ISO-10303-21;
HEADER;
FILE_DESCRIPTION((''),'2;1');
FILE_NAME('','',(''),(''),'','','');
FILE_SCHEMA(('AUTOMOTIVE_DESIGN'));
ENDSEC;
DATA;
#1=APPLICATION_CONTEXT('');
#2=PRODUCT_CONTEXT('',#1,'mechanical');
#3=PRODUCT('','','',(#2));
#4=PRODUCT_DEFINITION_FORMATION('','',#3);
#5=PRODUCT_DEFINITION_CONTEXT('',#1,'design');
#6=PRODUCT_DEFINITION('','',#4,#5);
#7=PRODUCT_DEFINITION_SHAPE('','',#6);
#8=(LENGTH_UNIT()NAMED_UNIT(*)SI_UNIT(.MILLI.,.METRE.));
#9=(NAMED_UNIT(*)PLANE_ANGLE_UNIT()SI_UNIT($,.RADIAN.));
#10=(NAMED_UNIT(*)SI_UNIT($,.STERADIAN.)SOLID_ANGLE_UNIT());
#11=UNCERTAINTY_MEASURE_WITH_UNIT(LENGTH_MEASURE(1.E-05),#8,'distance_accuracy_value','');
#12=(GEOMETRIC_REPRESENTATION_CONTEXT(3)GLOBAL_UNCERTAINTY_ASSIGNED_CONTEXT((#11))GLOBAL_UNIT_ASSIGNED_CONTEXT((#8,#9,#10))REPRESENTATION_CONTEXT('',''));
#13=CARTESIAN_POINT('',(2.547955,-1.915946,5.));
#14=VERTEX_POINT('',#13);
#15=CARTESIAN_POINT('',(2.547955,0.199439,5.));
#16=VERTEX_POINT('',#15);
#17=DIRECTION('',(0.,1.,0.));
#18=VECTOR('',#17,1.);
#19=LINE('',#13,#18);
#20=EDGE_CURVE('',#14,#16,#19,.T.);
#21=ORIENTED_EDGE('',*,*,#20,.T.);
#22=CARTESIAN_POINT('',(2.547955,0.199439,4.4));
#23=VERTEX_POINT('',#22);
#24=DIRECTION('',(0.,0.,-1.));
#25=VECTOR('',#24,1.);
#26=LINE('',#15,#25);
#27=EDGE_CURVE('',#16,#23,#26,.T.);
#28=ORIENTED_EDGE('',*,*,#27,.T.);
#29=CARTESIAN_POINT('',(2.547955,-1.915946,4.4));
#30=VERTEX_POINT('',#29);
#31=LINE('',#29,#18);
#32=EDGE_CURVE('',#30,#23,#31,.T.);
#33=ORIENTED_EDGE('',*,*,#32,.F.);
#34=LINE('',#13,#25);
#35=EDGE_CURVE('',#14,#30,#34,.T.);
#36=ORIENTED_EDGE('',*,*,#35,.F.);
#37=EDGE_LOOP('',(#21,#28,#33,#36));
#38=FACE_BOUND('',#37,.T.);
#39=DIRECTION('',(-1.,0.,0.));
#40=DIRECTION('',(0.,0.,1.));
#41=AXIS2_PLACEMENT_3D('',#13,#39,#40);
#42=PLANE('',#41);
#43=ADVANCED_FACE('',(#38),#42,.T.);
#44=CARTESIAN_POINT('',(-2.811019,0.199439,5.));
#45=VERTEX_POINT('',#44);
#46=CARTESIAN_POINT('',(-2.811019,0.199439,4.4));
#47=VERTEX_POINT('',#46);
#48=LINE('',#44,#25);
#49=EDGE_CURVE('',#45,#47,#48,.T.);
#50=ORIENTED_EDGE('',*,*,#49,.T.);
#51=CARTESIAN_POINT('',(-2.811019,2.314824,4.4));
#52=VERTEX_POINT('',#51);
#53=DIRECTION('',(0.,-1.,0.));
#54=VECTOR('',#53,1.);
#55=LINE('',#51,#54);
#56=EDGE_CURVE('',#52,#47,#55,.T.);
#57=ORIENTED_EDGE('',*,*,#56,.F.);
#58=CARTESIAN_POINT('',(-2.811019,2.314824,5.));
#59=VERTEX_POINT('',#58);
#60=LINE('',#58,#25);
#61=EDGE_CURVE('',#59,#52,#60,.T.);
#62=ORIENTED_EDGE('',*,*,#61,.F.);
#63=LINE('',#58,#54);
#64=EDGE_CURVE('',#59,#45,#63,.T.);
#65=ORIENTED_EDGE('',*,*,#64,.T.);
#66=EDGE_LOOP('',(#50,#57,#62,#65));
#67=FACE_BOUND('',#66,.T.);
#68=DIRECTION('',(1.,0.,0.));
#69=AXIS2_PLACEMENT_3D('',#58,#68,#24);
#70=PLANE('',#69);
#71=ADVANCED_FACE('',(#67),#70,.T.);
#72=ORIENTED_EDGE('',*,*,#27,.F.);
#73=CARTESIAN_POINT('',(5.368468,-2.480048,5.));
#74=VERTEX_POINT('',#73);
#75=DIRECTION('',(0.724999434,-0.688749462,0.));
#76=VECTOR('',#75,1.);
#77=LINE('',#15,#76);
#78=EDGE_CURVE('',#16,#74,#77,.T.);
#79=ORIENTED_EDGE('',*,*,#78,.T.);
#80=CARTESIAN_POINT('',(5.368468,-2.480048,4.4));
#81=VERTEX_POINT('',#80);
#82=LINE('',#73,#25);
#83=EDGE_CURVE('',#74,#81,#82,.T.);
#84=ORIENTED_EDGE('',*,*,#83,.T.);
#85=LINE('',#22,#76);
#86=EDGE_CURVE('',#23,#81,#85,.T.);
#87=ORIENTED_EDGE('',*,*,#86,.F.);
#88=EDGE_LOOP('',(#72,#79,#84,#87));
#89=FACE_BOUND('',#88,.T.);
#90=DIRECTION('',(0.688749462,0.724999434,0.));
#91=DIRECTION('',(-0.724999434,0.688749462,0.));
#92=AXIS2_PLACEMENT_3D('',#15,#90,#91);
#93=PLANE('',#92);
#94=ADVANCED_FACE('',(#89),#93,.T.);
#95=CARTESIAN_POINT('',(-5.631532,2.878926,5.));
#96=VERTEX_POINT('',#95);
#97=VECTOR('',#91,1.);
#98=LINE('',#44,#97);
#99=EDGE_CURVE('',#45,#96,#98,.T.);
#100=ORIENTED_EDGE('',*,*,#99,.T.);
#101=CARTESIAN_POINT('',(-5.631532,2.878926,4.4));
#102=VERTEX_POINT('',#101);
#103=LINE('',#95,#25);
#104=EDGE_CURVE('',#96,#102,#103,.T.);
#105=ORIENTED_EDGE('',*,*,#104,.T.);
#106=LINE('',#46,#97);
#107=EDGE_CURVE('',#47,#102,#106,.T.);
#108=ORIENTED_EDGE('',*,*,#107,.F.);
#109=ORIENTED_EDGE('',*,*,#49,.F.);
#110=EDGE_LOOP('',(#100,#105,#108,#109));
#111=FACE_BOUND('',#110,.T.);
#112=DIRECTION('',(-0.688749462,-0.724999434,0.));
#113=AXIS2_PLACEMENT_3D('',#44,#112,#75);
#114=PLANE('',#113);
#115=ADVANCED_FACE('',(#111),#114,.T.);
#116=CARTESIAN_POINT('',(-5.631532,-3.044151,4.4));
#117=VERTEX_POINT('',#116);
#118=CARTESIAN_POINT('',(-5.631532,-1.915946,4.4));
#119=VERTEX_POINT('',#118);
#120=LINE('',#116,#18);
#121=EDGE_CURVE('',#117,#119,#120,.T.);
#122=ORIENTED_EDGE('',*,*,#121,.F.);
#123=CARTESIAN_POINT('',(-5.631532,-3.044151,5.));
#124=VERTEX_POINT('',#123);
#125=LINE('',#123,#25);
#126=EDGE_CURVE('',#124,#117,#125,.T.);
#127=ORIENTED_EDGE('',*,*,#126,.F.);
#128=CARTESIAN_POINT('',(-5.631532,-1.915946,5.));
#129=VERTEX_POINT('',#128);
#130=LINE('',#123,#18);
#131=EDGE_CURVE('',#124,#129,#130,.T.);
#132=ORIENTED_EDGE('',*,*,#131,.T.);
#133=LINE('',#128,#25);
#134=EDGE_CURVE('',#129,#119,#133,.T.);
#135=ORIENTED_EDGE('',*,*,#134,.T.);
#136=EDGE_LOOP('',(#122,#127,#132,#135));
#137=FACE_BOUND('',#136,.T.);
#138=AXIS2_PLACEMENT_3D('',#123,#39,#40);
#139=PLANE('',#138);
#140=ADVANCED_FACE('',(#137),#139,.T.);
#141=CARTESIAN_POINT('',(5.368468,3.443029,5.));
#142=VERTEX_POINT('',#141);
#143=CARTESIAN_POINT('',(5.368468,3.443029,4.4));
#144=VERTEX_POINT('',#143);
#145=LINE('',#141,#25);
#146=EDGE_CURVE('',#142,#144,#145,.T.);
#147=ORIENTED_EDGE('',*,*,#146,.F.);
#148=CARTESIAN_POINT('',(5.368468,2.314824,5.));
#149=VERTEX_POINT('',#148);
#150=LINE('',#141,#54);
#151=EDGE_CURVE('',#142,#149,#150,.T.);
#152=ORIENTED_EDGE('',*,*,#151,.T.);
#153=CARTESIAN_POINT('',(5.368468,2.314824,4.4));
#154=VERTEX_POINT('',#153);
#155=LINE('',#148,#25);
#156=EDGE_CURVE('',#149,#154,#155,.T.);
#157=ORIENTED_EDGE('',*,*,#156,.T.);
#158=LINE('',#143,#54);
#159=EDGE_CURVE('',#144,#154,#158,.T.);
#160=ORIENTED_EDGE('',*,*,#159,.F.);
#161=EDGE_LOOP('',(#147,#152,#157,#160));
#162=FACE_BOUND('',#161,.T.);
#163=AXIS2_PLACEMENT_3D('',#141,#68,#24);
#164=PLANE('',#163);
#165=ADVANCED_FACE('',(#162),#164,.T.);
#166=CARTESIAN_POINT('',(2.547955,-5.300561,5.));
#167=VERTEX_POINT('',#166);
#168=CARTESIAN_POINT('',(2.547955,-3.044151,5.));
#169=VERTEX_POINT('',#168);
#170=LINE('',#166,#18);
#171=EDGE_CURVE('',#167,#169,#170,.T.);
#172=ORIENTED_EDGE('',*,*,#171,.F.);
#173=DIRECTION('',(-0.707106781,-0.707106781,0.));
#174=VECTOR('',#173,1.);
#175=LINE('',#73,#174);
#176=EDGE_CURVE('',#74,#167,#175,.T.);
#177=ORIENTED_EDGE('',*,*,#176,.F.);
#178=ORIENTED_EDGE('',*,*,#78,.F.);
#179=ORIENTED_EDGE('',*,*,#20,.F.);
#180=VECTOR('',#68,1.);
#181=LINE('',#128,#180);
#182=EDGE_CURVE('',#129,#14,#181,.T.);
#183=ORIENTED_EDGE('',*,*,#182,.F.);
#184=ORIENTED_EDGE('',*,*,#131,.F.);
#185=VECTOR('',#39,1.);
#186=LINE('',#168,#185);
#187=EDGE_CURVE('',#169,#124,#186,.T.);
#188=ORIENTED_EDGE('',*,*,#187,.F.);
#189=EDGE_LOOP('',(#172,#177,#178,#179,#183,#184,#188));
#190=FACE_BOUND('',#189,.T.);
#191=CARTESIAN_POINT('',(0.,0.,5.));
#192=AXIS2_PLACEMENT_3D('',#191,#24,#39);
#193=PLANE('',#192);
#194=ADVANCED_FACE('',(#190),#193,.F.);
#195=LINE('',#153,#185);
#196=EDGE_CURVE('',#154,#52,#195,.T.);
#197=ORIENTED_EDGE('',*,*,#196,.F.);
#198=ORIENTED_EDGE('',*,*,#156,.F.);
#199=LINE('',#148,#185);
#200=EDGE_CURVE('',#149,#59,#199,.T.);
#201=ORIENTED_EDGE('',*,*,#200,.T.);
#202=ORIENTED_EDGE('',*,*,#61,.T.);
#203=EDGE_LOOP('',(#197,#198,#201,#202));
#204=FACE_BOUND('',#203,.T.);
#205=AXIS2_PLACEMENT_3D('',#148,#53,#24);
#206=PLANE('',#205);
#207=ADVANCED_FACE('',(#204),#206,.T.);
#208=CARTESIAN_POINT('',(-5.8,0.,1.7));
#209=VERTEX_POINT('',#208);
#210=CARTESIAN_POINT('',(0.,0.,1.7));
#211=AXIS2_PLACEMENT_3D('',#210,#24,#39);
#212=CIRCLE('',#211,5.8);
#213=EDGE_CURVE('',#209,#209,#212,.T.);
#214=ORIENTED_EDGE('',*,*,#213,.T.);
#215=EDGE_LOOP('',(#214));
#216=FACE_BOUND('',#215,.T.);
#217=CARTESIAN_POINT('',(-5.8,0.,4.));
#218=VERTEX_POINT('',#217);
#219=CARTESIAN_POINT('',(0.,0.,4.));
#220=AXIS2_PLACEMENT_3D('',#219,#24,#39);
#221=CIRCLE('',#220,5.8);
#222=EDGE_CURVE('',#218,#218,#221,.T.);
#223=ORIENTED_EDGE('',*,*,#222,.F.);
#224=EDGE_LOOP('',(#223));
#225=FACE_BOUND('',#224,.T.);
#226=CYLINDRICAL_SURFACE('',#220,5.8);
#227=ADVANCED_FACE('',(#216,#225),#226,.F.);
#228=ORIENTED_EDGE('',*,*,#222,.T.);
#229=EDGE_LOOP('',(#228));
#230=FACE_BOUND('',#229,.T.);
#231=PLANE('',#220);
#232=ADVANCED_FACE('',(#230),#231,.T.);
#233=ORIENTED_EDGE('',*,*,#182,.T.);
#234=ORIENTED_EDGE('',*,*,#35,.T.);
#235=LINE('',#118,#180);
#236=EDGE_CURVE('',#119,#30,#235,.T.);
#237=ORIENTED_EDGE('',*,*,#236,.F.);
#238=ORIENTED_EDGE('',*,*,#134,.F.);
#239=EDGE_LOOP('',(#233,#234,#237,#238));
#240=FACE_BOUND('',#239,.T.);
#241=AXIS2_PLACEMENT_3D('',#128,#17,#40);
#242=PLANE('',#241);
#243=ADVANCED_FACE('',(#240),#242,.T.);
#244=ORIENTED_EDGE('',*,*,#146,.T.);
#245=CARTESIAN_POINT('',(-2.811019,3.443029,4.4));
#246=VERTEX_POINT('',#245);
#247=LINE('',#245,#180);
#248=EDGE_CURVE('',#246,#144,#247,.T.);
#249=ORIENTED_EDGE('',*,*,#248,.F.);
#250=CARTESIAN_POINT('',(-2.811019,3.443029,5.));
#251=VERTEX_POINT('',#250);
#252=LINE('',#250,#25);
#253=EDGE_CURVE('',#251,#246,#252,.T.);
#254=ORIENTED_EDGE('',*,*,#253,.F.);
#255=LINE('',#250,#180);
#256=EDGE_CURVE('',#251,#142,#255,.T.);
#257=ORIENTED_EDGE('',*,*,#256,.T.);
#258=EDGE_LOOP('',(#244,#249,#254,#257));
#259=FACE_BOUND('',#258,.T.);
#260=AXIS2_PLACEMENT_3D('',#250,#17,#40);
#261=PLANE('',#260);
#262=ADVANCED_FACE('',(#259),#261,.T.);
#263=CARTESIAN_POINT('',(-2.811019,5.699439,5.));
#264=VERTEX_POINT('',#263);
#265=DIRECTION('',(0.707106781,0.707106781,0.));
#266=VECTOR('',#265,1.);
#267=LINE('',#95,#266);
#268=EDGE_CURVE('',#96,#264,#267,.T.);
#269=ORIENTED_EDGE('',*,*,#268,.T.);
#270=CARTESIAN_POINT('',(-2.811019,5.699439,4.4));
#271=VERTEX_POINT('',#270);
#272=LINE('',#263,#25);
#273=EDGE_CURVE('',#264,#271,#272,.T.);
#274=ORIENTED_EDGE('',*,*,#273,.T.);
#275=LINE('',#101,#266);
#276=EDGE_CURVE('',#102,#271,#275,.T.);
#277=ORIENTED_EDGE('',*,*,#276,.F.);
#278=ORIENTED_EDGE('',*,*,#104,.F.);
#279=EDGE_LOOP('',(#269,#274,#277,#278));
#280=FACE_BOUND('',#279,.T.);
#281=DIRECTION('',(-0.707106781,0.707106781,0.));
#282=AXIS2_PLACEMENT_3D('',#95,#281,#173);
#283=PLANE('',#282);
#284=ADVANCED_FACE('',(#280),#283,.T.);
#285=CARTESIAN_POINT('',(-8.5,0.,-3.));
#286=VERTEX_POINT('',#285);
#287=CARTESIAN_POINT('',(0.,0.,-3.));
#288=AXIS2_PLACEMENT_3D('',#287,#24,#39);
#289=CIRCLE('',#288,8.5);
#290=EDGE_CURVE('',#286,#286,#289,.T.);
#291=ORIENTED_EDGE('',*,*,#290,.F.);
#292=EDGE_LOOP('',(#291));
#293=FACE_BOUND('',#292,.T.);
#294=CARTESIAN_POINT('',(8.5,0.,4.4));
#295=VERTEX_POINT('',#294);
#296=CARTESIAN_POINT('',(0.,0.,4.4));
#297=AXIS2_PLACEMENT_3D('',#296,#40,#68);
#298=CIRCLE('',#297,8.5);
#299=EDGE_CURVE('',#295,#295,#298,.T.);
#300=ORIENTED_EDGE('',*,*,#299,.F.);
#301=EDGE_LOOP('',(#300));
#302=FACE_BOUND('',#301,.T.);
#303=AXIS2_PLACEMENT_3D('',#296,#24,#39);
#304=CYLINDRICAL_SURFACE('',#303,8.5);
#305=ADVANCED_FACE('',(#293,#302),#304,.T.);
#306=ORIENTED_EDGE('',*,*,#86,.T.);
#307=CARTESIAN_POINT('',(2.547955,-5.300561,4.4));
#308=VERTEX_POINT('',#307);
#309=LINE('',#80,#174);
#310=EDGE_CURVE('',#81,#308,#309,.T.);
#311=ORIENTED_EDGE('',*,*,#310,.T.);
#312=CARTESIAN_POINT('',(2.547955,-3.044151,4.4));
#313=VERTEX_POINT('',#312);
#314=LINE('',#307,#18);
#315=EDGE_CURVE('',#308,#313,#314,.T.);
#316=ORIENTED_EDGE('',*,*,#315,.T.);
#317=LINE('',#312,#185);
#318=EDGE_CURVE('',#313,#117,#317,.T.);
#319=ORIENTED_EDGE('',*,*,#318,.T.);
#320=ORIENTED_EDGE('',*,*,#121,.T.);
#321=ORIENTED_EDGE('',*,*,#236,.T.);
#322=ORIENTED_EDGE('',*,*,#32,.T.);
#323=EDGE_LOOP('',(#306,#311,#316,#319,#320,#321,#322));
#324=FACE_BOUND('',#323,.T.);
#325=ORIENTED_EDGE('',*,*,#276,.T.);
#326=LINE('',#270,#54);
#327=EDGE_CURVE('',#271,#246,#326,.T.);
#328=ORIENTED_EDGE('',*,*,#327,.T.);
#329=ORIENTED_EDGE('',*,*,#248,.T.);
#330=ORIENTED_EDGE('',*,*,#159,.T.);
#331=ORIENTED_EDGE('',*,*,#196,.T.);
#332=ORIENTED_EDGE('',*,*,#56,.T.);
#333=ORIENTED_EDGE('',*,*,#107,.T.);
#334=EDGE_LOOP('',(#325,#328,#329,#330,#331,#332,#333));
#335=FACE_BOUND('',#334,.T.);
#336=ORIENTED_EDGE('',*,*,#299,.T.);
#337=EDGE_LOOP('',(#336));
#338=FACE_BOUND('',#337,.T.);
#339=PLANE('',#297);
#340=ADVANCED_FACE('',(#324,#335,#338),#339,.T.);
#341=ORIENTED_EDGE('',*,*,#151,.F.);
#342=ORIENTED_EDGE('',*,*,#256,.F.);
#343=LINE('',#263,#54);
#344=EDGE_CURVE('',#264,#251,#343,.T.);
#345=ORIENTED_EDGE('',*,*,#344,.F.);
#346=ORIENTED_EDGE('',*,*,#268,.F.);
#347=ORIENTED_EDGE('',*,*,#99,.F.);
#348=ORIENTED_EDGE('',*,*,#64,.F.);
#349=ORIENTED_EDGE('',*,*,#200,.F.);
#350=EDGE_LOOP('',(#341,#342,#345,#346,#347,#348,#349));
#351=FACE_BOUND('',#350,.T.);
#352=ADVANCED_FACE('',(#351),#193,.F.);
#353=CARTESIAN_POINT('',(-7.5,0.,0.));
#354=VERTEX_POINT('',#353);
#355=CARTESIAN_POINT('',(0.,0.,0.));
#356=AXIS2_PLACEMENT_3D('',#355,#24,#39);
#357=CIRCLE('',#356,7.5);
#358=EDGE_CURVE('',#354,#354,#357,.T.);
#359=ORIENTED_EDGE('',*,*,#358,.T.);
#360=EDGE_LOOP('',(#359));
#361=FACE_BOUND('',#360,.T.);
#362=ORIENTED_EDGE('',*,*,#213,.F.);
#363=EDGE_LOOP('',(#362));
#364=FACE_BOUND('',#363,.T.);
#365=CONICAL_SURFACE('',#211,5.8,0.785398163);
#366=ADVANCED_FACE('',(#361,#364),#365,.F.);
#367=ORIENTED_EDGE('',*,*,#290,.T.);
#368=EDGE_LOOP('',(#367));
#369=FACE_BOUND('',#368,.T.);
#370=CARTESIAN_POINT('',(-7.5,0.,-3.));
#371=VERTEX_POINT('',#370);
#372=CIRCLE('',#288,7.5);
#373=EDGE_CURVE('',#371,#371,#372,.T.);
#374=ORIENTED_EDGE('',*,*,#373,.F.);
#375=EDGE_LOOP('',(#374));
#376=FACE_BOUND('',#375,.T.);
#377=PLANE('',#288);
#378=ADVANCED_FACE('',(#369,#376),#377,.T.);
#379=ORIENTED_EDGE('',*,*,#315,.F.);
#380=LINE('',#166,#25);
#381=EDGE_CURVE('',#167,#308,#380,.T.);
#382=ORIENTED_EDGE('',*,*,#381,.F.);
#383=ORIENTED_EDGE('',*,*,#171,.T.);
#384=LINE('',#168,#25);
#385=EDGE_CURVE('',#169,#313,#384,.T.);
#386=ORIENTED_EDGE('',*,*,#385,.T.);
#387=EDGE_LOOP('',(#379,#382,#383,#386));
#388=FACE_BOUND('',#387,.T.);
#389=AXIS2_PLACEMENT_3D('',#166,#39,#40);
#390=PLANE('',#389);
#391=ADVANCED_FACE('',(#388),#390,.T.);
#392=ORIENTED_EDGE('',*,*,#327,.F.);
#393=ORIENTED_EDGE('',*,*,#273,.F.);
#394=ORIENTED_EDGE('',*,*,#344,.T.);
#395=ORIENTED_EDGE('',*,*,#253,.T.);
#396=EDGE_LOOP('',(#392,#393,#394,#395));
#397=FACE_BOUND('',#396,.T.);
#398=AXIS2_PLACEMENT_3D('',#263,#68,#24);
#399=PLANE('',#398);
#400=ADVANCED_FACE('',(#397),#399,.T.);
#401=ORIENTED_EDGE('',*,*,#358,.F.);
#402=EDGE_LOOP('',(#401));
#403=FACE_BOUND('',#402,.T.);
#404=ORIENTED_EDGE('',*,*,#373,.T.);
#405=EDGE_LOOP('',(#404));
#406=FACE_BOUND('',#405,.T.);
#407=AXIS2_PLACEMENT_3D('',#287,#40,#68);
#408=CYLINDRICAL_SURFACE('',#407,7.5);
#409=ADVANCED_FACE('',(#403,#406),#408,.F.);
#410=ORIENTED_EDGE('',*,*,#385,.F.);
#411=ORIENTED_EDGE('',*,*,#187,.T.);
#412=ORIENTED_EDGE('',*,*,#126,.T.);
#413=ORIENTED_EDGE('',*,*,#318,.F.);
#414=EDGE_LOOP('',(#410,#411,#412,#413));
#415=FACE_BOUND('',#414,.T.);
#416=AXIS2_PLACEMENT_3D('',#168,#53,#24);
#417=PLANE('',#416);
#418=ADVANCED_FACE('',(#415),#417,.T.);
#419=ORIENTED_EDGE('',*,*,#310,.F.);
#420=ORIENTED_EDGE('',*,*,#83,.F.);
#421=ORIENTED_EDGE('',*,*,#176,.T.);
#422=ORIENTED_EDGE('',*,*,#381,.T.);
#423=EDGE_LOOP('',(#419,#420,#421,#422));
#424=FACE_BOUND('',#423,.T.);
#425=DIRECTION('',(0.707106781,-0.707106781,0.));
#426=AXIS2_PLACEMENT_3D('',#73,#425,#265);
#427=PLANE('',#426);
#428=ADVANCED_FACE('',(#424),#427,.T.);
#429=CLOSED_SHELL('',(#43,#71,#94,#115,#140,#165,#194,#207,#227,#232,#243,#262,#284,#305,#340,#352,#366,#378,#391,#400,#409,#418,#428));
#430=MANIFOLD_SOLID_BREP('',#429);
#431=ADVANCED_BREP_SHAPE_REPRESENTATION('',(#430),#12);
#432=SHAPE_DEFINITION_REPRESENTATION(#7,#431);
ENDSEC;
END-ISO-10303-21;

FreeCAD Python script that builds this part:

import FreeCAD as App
import Part
import Sketcher

V = App.Vector
Q = App.Units.Quantity


def add_polygon(sketch, points):
    """Adds a closed chain of lines whose ends are joined by coincident constraints."""
    first, n = sketch.GeometryCount, len(points)
    for a, b in zip(points, points[1:] + points[:1]):
        sketch.addGeometry(Part.LineSegment(App.Vector(*a, 0), App.Vector(*b, 0)), False)
    for i in range(n):
        sketch.addConstraint(Sketcher.Constraint("Coincident", first + i, 2, first + (i + 1) % n, 1))

doc = App.newDocument("Part")
params = doc.addObject("Spreadsheet::Sheet", "Params")
for row, (alias, value) in enumerate([
    ("sketch1_diameter", "17 mm"),
    ("pad1_length", "4.4 mm"),
    ("sketch2_diameter", "11.6 mm"),
    ("pocket1_length", "4 mm"),
    ("sketch3_diameter", "17 mm"),
    ("sketch3_diameter2", "15 mm"),
    ("pad2_length", "3 mm"),
    ("sketch4_width", "1.7 mm"),
    ("groove_angle", "360 deg"),
    ("pad3_length", "0.6 mm"),
], start=1):
    params.set(f"A{row}", alias)
    params.set(f"B{row}", "=" + value)
    params.setAlias(f"B{row}", alias)

body = doc.addObject("PartDesign::Body", "Body")

# Sketch on XY plane
sketch1 = doc.addObject("Sketcher::SketchObject", "Sketch")
body.addObject(sketch1)
sketch1.AttachmentSupport = (doc.XY_Plane, [""])
sketch1.MapMode = "FlatFace"
sketch1.addGeometry(Part.Circle(V(0, 0, 0), V(0, 0, 1), 8), False)
sketch1.addConstraint([
    Sketcher.Constraint("Coincident", 0, 3, -1, 1),
    Sketcher.Constraint("Diameter", 0, Q("17 mm")),
])
sketch1.setExpression("Constraints[1]", "Params.sketch1_diameter")
pad1 = doc.addObject("PartDesign::Pad", "Pad")
body.addObject(pad1)
pad1.Profile = sketch1
pad1.setExpression("Length", "Params.pad1_length")

# Sketch on XY plane
sketch2 = doc.addObject("Sketcher::SketchObject", "Sketch001")
body.addObject(sketch2)
sketch2.AttachmentSupport = (doc.XY_Plane, [""])
sketch2.MapMode = "FlatFace"
sketch2.addGeometry(Part.Circle(V(0, 0, 0), V(0, 0, 1), 6), False)
sketch2.addConstraint([
    Sketcher.Constraint("Coincident", 0, 3, -1, 1),
    Sketcher.Constraint("Diameter", 0, Q("11.6 mm")),
])
sketch2.setExpression("Constraints[1]", "Params.sketch2_diameter")
pocket1 = doc.addObject("PartDesign::Pocket", "Pocket")
body.addObject(pocket1)
pocket1.Profile = sketch2
pocket1.setExpression("Length", "Params.pocket1_length")
pocket1.Reversed = True

# Sketch on XY plane
sketch3 = doc.addObject("Sketcher::SketchObject", "Sketch002")
body.addObject(sketch3)
sketch3.AttachmentSupport = (doc.XY_Plane, [""])
sketch3.MapMode = "FlatFace"
sketch3.AttachmentOffset = App.Placement(V(0, 0, -3), App.Rotation())
sketch3.addGeometry([
    Part.Circle(V(0, 0, 0), V(0, 0, 1), 8),
    Part.Circle(V(0, 0, 0), V(0, 0, 1), 8),
], False)
sketch3.addConstraint([
    Sketcher.Constraint("Coincident", 0, 3, -1, 1),
    Sketcher.Constraint("Coincident", 1, 3, -1, 1),
    Sketcher.Constraint("Diameter", 0, Q("17 mm")),
    Sketcher.Constraint("Diameter", 1, Q("15 mm")),
])
sketch3.setExpression("Constraints[2]", "Params.sketch3_diameter")
sketch3.setExpression("Constraints[3]", "Params.sketch3_diameter2")
pad2 = doc.addObject("PartDesign::Pad", "Pad001")
body.addObject(pad2)
pad2.Profile = sketch3
pad2.setExpression("Length", "Params.pad2_length")

# Sketch on XZ plane
sketch4 = doc.addObject("Sketcher::SketchObject", "Sketch003")
body.addObject(sketch4)
sketch4.AttachmentSupport = (doc.XZ_Plane, [""])
sketch4.MapMode = "FlatFace"
add_polygon(sketch4, [(5.8, 1.7), (7.5, 0), (5.8, 0)])  # lines 0-2
sketch4.addConstraint([
    Sketcher.Constraint("Horizontal", 1),
    Sketcher.Constraint("Vertical", 2),
    Sketcher.Constraint("PointOnObject", 0, 2, -1),
    Sketcher.Constraint("Equal", 1, 2),
    Sketcher.Constraint("DistanceX", 1, 2, 1, 1, Q("1.7 mm")),
    Sketcher.Constraint("DistanceX", -1, 1, 0, 2, Q("7.5 mm")),
])
sketch4.setExpression("Constraints[7]", "Params.sketch4_width")
groove = doc.addObject("PartDesign::Groove", "Groove")
body.addObject(groove)
groove.Profile = sketch4
groove.ReferenceAxis = (sketch4, ["V_Axis"])
groove.setExpression("Angle", "Params.groove_angle")

# Sketch on XY plane
sketch5 = doc.addObject("Sketcher::SketchObject", "Sketch004")
body.addObject(sketch5)
sketch5.AttachmentSupport = (doc.XY_Plane, [""])
sketch5.MapMode = "FlatFace"
sketch5.AttachmentOffset = App.Placement(V(0, 0, 4.4), App.Rotation())
add_polygon(sketch5, [(-2.8, 5.7), (-5.6, 2.9), (-2.8, 0.2), (-2.8, 2.3), (5.4, 2.3), (5.4, 3.4), (-2.8, 3.4)])  # lines 0-6
add_polygon(sketch5, [(2.5, -5.3), (5.4, -2.5), (2.5, 0.2), (2.5, -1.9), (-5.6, -1.9), (-5.6, -3), (2.5, -3)])  # lines 7-13
sketch5.addConstraint([
    Sketcher.Constraint("Vertical", 2),
    Sketcher.Constraint("Horizontal", 3),
    Sketcher.Constraint("Vertical", 4),
    Sketcher.Constraint("Horizontal", 5),
    Sketcher.Constraint("Vertical", 6),
    Sketcher.Constraint("Vertical", 9),
    Sketcher.Constraint("Horizontal", 10),
    Sketcher.Constraint("Vertical", 11),
    Sketcher.Constraint("Horizontal", 12),
    Sketcher.Constraint("Vertical", 13),
    Sketcher.Constraint("Parallel", 0, 7),
    Sketcher.Constraint("Parallel", 1, 8),
    Sketcher.Constraint("Horizontal", 1, 2, 8, 2),
    Sketcher.Constraint("Vertical", 2, 2, 5, 2),
    Sketcher.Constraint("Vertical", 4, 2, 7, 2),
    Sketcher.Constraint("Vertical", 0, 2, 10, 2),
    Sketcher.Constraint("Vertical", 9, 2, 12, 2),
    Sketcher.Constraint("Equal", 5, 10),
    Sketcher.Constraint("Equal", 2, 9),
    Sketcher.Constraint("Equal", 4, 11),
    Sketcher.Constraint("Angle", 0, Q("-135 deg")),
    Sketcher.Constraint("DistanceX", 0, 2, 3, 2, Q("11 mm")),
    Sketcher.Constraint("DistanceY", 1, 2, 6, 2, Q("5.5 mm")),
    Sketcher.Constraint("DistanceY", 6, 1, 6, 2, Q("2.25641 mm")),
    Sketcher.Constraint("DistanceX", 3, 1, 3, 2, Q("8.179487 mm")),
    Sketcher.Constraint("DistanceY", 2, 1, 2, 2, Q("2.115385 mm")),
    Sketcher.Constraint("DistanceX", 1, 2, -1, 1, Q("2.811019 mm")),
    Sketcher.Constraint("DistanceY", -1, 1, 1, 2, Q("0.199439 mm")),
])
pad3 = doc.addObject("PartDesign::Pad", "Pad002")
body.addObject(pad3)
pad3.Profile = sketch5
pad3.setExpression("Length", "Params.pad3_length")

doc.recompute()
